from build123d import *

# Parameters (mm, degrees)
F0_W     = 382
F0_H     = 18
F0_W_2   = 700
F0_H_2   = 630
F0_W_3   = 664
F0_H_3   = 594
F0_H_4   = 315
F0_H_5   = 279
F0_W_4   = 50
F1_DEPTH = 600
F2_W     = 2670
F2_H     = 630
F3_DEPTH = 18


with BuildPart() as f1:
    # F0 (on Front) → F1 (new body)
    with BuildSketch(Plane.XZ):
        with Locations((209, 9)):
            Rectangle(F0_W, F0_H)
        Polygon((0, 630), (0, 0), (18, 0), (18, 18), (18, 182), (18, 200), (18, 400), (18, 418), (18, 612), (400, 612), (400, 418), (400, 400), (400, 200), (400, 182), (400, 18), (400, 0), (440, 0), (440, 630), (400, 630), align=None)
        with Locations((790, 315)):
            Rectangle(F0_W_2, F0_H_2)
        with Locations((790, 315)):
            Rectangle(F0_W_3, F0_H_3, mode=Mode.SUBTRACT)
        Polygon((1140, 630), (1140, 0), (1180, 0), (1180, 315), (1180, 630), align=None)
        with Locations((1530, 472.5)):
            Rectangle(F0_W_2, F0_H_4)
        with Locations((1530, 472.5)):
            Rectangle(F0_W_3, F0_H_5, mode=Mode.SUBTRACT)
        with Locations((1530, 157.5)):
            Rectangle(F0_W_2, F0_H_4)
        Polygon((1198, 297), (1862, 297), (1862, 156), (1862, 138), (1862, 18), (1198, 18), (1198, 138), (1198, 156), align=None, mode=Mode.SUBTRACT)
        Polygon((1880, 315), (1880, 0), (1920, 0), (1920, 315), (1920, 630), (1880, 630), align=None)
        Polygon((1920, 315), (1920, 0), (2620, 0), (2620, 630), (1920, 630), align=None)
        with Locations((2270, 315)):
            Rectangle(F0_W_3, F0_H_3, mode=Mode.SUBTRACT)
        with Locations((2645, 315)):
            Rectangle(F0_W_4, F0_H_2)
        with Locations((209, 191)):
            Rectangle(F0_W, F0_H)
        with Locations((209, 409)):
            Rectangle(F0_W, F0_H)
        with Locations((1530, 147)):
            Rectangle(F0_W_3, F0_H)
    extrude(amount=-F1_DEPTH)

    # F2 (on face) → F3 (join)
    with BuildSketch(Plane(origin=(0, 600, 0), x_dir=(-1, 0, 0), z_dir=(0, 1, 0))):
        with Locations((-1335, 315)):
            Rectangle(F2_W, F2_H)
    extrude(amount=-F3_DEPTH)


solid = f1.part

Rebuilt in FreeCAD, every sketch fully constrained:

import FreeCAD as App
import Part
import Sketcher

V = App.Vector

doc = App.newDocument("Part")
body = doc.addObject("PartDesign::Body", "Body")

sketch1 = body.newObject("Sketcher::SketchObject", "Sketch")
sketch1.AttachmentSupport = (doc.getObject("XZ_Plane"), [""])
sketch1.MapMode = "FlatFace"
sketch1.addGeometry([
    Part.LineSegment(V(0, 630, 0), V(0, 0, 0)),
    Part.LineSegment(V(0, 0, 0), V(2670, 0, 0)),
    Part.LineSegment(V(2670, 0, 0), V(2670, 630, 0)),
    Part.LineSegment(V(2670, 630, 0), V(0, 630, 0)),
    Part.LineSegment(V(400, 18, 0), V(18, 18, 0)),
    Part.LineSegment(V(18, 18, 0), V(18, 182, 0)),
    Part.LineSegment(V(18, 182, 0), V(400, 182, 0)),
    Part.LineSegment(V(400, 182, 0), V(400, 18, 0)),
    Part.LineSegment(V(18, 200, 0), V(18, 400, 0)),
    Part.LineSegment(V(18, 400, 0), V(400, 400, 0)),
    Part.LineSegment(V(400, 400, 0), V(400, 200, 0)),
    Part.LineSegment(V(400, 200, 0), V(18, 200, 0)),
    Part.LineSegment(V(1198, 18, 0), V(1198, 138, 0)),
    Part.LineSegment(V(1198, 138, 0), V(1862, 138, 0)),
    Part.LineSegment(V(1862, 138, 0), V(1862, 18, 0)),
    Part.LineSegment(V(1862, 18, 0), V(1198, 18, 0)),
    Part.LineSegment(V(1198, 156, 0), V(1198, 297, 0)),
    Part.LineSegment(V(1198, 297, 0), V(1862, 297, 0)),
    Part.LineSegment(V(1862, 297, 0), V(1862, 156, 0)),
    Part.LineSegment(V(1862, 156, 0), V(1198, 156, 0)),
    Part.LineSegment(V(1122, 18, 0), V(458, 18, 0)),
    Part.LineSegment(V(458, 18, 0), V(458, 612, 0)),
    Part.LineSegment(V(458, 612, 0), V(1122, 612, 0)),
    Part.LineSegment(V(1122, 612, 0), V(1122, 18, 0)),
    Part.LineSegment(V(18, 418, 0), V(18, 612, 0)),
    Part.LineSegment(V(18, 612, 0), V(400, 612, 0)),
    Part.LineSegment(V(400, 612, 0), V(400, 418, 0)),
    Part.LineSegment(V(400, 418, 0), V(18, 418, 0)),
    Part.LineSegment(V(2602, 18, 0), V(1938, 18, 0)),
    Part.LineSegment(V(1938, 18, 0), V(1938, 612, 0)),
    Part.LineSegment(V(1938, 612, 0), V(2602, 612, 0)),
    Part.LineSegment(V(2602, 612, 0), V(2602, 18, 0)),
    Part.LineSegment(V(1862, 333, 0), V(1198, 333, 0)),
    Part.LineSegment(V(1198, 333, 0), V(1198, 612, 0)),
    Part.LineSegment(V(1198, 612, 0), V(1862, 612, 0)),
    Part.LineSegment(V(1862, 612, 0), V(1862, 333, 0)),
], False)
sketch1.addConstraint([
    Sketcher.Constraint("Coincident", 0, 2, 1, 1),
    Sketcher.Constraint("Coincident", 1, 2, 2, 1),
    Sketcher.Constraint("Coincident", 2, 2, 3, 1),
    Sketcher.Constraint("Coincident", 3, 2, 0, 1),
    Sketcher.Constraint("Coincident", 4, 2, 5, 1),
    Sketcher.Constraint("Coincident", 5, 2, 6, 1),
    Sketcher.Constraint("Coincident", 6, 2, 7, 1),
    Sketcher.Constraint("Coincident", 7, 2, 4, 1),
    Sketcher.Constraint("Coincident", 8, 2, 9, 1),
    Sketcher.Constraint("Coincident", 9, 2, 10, 1),
    Sketcher.Constraint("Coincident", 10, 2, 11, 1),
    Sketcher.Constraint("Coincident", 11, 2, 8, 1),
    Sketcher.Constraint("Coincident", 12, 2, 13, 1),
    Sketcher.Constraint("Coincident", 13, 2, 14, 1),
    Sketcher.Constraint("Coincident", 14, 2, 15, 1),
    Sketcher.Constraint("Coincident", 15, 2, 12, 1),
    Sketcher.Constraint("Coincident", 16, 2, 17, 1),
    Sketcher.Constraint("Coincident", 17, 2, 18, 1),
    Sketcher.Constraint("Coincident", 18, 2, 19, 1),
    Sketcher.Constraint("Coincident", 19, 2, 16, 1),
    Sketcher.Constraint("Coincident", 20, 2, 21, 1),
    Sketcher.Constraint("Coincident", 21, 2, 22, 1),
    Sketcher.Constraint("Coincident", 22, 2, 23, 1),
    Sketcher.Constraint("Coincident", 23, 2, 20, 1),
    Sketcher.Constraint("Coincident", 24, 2, 25, 1),
    Sketcher.Constraint("Coincident", 25, 2, 26, 1),
    Sketcher.Constraint("Coincident", 26, 2, 27, 1),
    Sketcher.Constraint("Coincident", 27, 2, 24, 1),
    Sketcher.Constraint("Coincident", 28, 2, 29, 1),
    Sketcher.Constraint("Coincident", 29, 2, 30, 1),
    Sketcher.Constraint("Coincident", 30, 2, 31, 1),
    Sketcher.Constraint("Coincident", 31, 2, 28, 1),
    Sketcher.Constraint("Coincident", 32, 2, 33, 1),
    Sketcher.Constraint("Coincident", 33, 2, 34, 1),
    Sketcher.Constraint("Coincident", 34, 2, 35, 1),
    Sketcher.Constraint("Coincident", 35, 2, 32, 1),
    Sketcher.Constraint("Vertical", 0),
    Sketcher.Constraint("Horizontal", 1),
    Sketcher.Constraint("Vertical", 2),
    Sketcher.Constraint("Horizontal", 3),
    Sketcher.Constraint("Horizontal", 4),
    Sketcher.Constraint("Vertical", 5),
    Sketcher.Constraint("Horizontal", 6),
    Sketcher.Constraint("Vertical", 7),
    Sketcher.Constraint("Vertical", 8),
    Sketcher.Constraint("Horizontal", 9),
    Sketcher.Constraint("Vertical", 10),
    Sketcher.Constraint("Horizontal", 11),
    Sketcher.Constraint("Vertical", 12),
    Sketcher.Constraint("Horizontal", 13),
    Sketcher.Constraint("Vertical", 14),
    Sketcher.Constraint("Horizontal", 15),
    Sketcher.Constraint("Vertical", 16),
    Sketcher.Constraint("Horizontal", 17),
    Sketcher.Constraint("Vertical", 18),
    Sketcher.Constraint("Horizontal", 19),
    Sketcher.Constraint("Horizontal", 20),
    Sketcher.Constraint("Vertical", 21),
    Sketcher.Constraint("Horizontal", 22),
    Sketcher.Constraint("Vertical", 23),
    Sketcher.Constraint("Vertical", 24),
    Sketcher.Constraint("Horizontal", 25),
    Sketcher.Constraint("Vertical", 26),
    Sketcher.Constraint("Horizontal", 27),
    Sketcher.Constraint("Horizontal", 28),
    Sketcher.Constraint("Vertical", 29),
    Sketcher.Constraint("Horizontal", 30),
    Sketcher.Constraint("Vertical", 31),
    Sketcher.Constraint("Horizontal", 32),
    Sketcher.Constraint("Vertical", 33),
    Sketcher.Constraint("Horizontal", 34),
    Sketcher.Constraint("Vertical", 35),
    Sketcher.Constraint("Coincident", 0, 2, -1, 1),
    Sketcher.Constraint("Horizontal", 7, 2, 14, 2),
    Sketcher.Constraint("Horizontal", 15, 2, 20, 2),
    Sketcher.Constraint("Horizontal", 22, 2, 24, 2),
    Sketcher.Constraint("Horizontal", 23, 2, 28, 2),
    Sketcher.Constraint("Horizontal", 25, 2, 29, 2),
    Sketcher.Constraint("Horizontal", 30, 2, 33, 2),
    Sketcher.Constraint("Vertical", 5, 2, 8, 2),
    Sketcher.Constraint("Vertical", 7, 2, 9, 2),
    Sketcher.Constraint("Vertical", 15, 2, 16, 2),
    Sketcher.Constraint("Vertical", 14, 2, 17, 2),
    Sketcher.Constraint("Vertical", 11, 2, 24, 2),
    Sketcher.Constraint("Vertical", 10, 2, 25, 2),
    Sketcher.Constraint("Vertical", 19, 2, 32, 2),
    Sketcher.Constraint("Vertical", 18, 2, 34, 2),
    Sketcher.Constraint("Equal", 19, 20),
    Sketcher.Constraint("Equal", 22, 28),
    Sketcher.Constraint("DistanceX", 1, 1, 1, 2, 2670.0),
    Sketcher.Constraint("DistanceX", 4, 2, 4, 1, 382.0),
    Sketcher.Constraint("DistanceX", 13, 1, 13, 2, 664.0),
    Sketcher.Constraint("DistanceY", 0, 2, 0, 1, 630.0),
    Sketcher.Constraint("DistanceY", 5, 1, 5, 2, 164.0),
    Sketcher.Constraint("DistanceY", 8, 1, 8, 2, 200.0),
    Sketcher.Constraint("DistanceY", 12, 1, 12, 2, 120.0),
    Sketcher.Constraint("DistanceY", 16, 1, 16, 2, 141.0),
    Sketcher.Constraint("DistanceY", 21, 1, 21, 2, 594.0),
    Sketcher.Constraint("DistanceY", 24, 1, 24, 2, 194.0),
    Sketcher.Constraint("DistanceY", 33, 1, 33, 2, 279.0),
    Sketcher.Constraint("DistanceX", -1, 1, 4, 2, 18.0),
    Sketcher.Constraint("DistanceY", -1, 1, 4, 2, 18.0),
    Sketcher.Constraint("DistanceY", -1, 1, 8, 2, 400.0),
    Sketcher.Constraint("DistanceX", -1, 1, 12, 2, 1198.0),
    Sketcher.Constraint("DistanceY", -1, 1, 16, 2, 297.0),
    Sketcher.Constraint("DistanceX", -1, 1, 20, 2, 458.0),
    Sketcher.Constraint("DistanceX", -1, 1, 28, 2, 1938.0),
])
pad1 = body.newObject("PartDesign::Pad", "Pad")
pad1.Profile = sketch1
pad1.Length = 600
pad1.Reversed = True

sketch2 = body.newObject("Sketcher::SketchObject", "Sketch001")
sketch2.AttachmentSupport = (doc.getObject("XZ_Plane"), [""])
sketch2.MapMode = "FlatFace"
sketch2.AttachmentOffset = App.Placement(V(0, 0, -600), App.Rotation())
sketch2.addGeometry([
    Part.LineSegment(V(2670, 630, 0), V(2670, 0, 0)),
    Part.LineSegment(V(2670, 0, 0), V(0, 0, 0)),
    Part.LineSegment(V(0, 0, 0), V(0, 630, 0)),
    Part.LineSegment(V(0, 630, 0), V(2670, 630, 0)),
], False)
sketch2.addConstraint([
    Sketcher.Constraint("Coincident", 0, 2, 1, 1),
    Sketcher.Constraint("Coincident", 1, 2, 2, 1),
    Sketcher.Constraint("Coincident", 2, 2, 3, 1),
    Sketcher.Constraint("Coincident", 3, 2, 0, 1),
    Sketcher.Constraint("Vertical", 0),
    Sketcher.Constraint("Horizontal", 1),
    Sketcher.Constraint("Vertical", 2),
    Sketcher.Constraint("Horizontal", 3),
    Sketcher.Constraint("Coincident", 1, 2, -1, 1),
    Sketcher.Constraint("DistanceX", 1, 2, 1, 1, 2670.0),
    Sketcher.Constraint("DistanceY", 0, 2, 0, 1, 630.0),
])
pad2 = body.newObject("PartDesign::Pad", "Pad001")
pad2.Profile = sketch2
pad2.Length = 18

doc.recompute()
